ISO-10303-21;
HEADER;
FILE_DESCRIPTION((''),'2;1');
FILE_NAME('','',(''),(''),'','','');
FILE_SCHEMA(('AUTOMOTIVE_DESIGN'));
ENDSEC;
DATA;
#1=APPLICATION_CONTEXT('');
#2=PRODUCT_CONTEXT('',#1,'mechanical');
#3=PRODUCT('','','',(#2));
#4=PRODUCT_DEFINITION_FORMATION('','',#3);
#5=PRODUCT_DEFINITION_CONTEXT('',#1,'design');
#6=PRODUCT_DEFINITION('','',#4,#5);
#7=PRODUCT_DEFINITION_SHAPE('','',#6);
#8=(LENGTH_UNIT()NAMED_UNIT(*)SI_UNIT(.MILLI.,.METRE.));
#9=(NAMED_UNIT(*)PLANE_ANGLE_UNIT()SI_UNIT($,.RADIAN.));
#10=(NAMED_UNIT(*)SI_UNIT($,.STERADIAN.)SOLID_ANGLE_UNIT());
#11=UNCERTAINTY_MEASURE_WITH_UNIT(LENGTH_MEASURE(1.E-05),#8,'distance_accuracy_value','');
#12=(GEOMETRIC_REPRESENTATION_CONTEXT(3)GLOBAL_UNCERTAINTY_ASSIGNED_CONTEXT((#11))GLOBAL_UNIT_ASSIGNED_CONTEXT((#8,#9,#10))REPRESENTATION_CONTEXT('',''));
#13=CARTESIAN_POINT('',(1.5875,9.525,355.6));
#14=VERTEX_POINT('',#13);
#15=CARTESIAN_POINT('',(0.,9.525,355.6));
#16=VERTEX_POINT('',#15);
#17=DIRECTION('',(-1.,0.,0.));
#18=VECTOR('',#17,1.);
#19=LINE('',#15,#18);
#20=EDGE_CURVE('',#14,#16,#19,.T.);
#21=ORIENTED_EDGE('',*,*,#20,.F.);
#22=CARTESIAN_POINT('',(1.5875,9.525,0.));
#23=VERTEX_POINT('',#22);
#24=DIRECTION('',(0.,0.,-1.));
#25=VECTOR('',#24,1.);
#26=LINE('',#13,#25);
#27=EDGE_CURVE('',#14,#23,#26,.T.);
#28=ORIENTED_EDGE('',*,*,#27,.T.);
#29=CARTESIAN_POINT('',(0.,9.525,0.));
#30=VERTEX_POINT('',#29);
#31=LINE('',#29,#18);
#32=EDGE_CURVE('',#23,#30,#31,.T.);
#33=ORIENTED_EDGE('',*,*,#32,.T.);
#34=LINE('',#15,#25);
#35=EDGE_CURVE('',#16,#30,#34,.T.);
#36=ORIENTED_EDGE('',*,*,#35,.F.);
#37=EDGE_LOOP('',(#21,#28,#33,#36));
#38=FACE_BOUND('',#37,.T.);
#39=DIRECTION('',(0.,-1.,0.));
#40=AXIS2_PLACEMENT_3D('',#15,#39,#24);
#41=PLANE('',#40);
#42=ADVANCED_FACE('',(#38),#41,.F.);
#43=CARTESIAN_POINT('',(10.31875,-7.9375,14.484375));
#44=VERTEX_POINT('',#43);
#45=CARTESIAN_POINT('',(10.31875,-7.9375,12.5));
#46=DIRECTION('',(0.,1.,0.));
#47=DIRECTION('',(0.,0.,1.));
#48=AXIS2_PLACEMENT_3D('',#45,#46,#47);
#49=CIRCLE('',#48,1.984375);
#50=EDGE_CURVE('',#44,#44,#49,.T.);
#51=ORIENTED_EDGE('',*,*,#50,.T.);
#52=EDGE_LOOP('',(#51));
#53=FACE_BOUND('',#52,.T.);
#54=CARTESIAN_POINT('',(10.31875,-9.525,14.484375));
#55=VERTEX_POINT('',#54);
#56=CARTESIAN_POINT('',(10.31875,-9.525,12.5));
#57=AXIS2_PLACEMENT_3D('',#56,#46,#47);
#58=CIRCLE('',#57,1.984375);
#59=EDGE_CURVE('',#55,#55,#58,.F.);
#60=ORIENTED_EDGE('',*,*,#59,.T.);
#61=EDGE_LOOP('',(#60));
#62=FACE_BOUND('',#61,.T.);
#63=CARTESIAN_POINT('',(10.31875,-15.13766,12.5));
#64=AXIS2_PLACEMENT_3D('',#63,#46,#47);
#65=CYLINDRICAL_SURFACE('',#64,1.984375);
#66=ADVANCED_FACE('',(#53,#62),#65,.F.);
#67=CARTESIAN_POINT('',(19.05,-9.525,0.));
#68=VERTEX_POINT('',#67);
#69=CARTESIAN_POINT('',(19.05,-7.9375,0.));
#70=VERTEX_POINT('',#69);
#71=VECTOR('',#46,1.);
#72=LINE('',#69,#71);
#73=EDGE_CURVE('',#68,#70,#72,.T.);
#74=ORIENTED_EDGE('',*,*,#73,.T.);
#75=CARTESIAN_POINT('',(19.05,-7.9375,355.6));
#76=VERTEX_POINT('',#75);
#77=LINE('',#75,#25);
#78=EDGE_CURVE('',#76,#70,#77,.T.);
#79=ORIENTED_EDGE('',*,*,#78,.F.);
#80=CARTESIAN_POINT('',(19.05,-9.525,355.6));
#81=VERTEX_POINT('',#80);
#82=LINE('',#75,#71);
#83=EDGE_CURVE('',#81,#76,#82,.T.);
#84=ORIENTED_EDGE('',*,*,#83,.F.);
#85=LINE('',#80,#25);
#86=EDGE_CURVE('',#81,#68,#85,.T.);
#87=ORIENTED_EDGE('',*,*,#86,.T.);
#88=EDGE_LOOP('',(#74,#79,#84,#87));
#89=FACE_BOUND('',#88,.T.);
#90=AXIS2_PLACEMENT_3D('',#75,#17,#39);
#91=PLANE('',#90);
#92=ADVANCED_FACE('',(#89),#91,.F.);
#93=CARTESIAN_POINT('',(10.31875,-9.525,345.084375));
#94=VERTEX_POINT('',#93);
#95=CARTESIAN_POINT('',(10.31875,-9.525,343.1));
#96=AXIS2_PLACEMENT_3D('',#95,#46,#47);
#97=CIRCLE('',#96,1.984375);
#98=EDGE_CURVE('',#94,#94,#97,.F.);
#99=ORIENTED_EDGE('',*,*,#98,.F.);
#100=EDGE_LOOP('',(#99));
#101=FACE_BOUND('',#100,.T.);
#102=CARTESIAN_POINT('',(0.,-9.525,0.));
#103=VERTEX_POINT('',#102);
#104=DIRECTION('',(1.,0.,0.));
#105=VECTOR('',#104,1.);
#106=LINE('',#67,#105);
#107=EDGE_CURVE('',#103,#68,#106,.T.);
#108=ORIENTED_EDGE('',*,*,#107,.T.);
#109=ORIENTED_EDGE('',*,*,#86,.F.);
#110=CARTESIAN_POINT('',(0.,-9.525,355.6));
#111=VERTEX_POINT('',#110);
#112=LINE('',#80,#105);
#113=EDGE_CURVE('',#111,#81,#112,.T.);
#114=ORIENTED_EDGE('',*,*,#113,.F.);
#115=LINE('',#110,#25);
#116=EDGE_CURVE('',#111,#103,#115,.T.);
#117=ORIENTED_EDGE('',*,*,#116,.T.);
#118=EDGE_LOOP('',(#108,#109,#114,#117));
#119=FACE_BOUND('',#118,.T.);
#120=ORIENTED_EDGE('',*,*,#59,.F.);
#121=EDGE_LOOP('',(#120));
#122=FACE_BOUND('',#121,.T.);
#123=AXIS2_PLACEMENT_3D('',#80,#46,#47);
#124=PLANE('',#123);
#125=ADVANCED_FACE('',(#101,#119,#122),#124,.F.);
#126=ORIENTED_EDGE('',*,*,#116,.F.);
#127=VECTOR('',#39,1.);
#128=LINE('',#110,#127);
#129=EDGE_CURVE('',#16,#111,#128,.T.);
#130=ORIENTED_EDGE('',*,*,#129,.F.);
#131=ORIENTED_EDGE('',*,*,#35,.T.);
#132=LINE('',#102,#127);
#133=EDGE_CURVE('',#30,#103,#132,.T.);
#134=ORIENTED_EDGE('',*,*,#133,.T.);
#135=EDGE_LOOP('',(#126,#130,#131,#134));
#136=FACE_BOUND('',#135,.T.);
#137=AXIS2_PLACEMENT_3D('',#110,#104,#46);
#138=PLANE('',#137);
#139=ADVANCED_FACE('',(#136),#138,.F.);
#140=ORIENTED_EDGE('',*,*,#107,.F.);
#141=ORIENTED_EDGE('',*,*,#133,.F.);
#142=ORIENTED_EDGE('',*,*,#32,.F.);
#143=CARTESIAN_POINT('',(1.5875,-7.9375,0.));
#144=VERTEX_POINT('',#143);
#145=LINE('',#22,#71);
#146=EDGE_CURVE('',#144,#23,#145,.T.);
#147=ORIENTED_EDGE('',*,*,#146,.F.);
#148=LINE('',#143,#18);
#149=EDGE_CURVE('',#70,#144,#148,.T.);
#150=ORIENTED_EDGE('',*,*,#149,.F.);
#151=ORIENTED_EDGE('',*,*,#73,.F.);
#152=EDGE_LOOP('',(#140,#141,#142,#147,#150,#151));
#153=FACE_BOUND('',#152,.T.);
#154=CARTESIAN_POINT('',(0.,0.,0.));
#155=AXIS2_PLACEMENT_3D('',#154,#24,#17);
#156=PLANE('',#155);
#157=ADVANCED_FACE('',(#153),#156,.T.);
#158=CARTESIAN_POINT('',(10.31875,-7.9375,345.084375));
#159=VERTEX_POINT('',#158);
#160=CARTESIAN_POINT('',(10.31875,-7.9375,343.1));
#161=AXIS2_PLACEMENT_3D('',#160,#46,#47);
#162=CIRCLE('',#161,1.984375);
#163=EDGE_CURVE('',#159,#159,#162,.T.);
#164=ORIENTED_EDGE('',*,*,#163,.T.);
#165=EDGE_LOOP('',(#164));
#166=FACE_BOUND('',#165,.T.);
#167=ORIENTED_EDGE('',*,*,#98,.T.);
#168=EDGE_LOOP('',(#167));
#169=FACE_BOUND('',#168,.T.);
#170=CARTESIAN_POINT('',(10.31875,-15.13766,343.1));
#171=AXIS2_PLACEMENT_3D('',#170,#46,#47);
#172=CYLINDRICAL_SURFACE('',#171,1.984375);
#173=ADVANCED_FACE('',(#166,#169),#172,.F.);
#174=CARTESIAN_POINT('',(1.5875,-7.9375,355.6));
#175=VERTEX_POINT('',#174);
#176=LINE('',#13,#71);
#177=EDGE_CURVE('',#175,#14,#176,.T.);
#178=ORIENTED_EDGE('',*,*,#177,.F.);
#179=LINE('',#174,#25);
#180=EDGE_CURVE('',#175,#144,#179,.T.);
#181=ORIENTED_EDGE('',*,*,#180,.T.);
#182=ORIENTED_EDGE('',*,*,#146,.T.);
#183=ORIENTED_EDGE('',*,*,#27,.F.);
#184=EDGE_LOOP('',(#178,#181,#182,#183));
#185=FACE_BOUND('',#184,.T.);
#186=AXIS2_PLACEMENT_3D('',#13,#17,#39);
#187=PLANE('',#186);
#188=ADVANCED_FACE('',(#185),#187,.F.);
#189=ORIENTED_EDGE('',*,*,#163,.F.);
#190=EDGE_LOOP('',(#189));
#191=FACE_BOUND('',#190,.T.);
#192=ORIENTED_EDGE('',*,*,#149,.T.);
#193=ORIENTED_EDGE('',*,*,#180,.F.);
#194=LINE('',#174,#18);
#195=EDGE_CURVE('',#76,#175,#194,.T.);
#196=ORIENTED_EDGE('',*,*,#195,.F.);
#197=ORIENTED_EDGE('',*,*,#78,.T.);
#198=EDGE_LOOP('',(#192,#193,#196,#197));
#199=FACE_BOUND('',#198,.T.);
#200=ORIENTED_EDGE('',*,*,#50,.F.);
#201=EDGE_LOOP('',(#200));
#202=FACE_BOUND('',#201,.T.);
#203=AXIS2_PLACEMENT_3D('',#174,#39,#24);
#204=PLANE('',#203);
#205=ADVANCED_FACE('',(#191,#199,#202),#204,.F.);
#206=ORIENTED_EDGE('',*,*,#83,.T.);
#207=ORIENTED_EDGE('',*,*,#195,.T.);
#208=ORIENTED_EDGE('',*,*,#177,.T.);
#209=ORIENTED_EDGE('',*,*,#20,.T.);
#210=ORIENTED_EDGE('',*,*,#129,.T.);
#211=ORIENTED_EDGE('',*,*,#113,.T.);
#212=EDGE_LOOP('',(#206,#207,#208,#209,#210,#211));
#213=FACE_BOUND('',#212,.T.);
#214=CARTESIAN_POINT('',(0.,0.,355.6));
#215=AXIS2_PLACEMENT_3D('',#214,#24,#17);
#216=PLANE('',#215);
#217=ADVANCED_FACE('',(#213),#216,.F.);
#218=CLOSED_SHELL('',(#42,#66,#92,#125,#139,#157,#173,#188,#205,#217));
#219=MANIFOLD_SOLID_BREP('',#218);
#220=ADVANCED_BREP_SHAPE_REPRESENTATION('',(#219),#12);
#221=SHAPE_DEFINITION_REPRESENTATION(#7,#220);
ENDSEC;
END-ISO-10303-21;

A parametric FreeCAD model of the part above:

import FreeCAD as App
import Part
import Sketcher

V = App.Vector
Q = App.Units.Quantity


def add_polygon(sketch, points):
    """Adds a closed chain of lines whose ends are joined by coincident constraints."""
    first, n = sketch.GeometryCount, len(points)
    for a, b in zip(points, points[1:] + points[:1]):
        sketch.addGeometry(Part.LineSegment(App.Vector(*a, 0), App.Vector(*b, 0)), False)
    for i in range(n):
        sketch.addConstraint(Sketcher.Constraint("Coincident", first + i, 2, first + (i + 1) % n, 1))

doc = App.newDocument("Part")
body = doc.addObject("PartDesign::Body", "Body")

sketch1 = doc.addObject("Sketcher::SketchObject", "Sketch")
body.addObject(sketch1)
sketch1.AttachmentSupport = (doc.XY_Plane, [""])
sketch1.MapMode = "FlatFace"
add_polygon(sketch1, [(0, 9.5), (0, -9.5), (19.1, -9.5), (19.1, -7.9), (1.6, -7.9), (1.6, 9.5)])
sketch1.addConstraint([
    Sketcher.Constraint("Vertical", 0),
    Sketcher.Constraint("Horizontal", 1),
    Sketcher.Constraint("Vertical", 2),
    Sketcher.Constraint("Horizontal", 3),
    Sketcher.Constraint("Vertical", 4),
    Sketcher.Constraint("Horizontal", 5),
    Sketcher.Constraint("Symmetric", 0, 2, 5, 2, -1, 1),
    Sketcher.Constraint("Equal", 1, 0),
    Sketcher.Constraint("Equal", 5, 2),
    Sketcher.Constraint("DistanceX", 1, 1, 1, 2, Q("0.75 in")),
    Sketcher.Constraint("DistanceX", 3, 2, 3, 1, Q("0.6875 in")),
])
pad1 = doc.addObject("PartDesign::Pad", "Pad")
body.addObject(pad1)
pad1.Profile = sketch1
pad1.Length = Q("14 in")

sketch2 = doc.addObject("Sketcher::SketchObject", "Sketch001")
body.addObject(sketch2)
sketch2.AttachmentSupport = (doc.XZ_Plane, [""])
sketch2.MapMode = "FlatFace"
sketch2.AttachmentOffset = App.Placement(V(0, 0, 0.3125 * 25.4), App.Rotation())
sketch2.addGeometry([
    Part.Circle(V(10.3, 12.5, 0), V(0, 0, 1), 2),
    Part.Circle(V(10.3, 343.1, 0), V(0, 0, 1), 2),
], False)
sketch2.addConstraint([
    Sketcher.Constraint("Equal", 0, 1),
    Sketcher.Constraint("Vertical", 0, 3, 1, 3),
    Sketcher.Constraint("Diameter", 0, Q("0.15625 in")),
    Sketcher.Constraint("DistanceX", -1, 1, 0, 3, Q("0.40625 in")),
    Sketcher.Constraint("DistanceY", -1, 1, 0, 3, 12.5),
    Sketcher.Constraint("DistanceY", -1, 1, 1, 3, 343.1),
])
pocket1 = doc.addObject("PartDesign::Pocket", "Pocket")
body.addObject(pocket1)
pocket1.Profile = sketch2
pocket1.Length = Q("0.0625 in")
pocket1.Reversed = True

doc.recompute()
